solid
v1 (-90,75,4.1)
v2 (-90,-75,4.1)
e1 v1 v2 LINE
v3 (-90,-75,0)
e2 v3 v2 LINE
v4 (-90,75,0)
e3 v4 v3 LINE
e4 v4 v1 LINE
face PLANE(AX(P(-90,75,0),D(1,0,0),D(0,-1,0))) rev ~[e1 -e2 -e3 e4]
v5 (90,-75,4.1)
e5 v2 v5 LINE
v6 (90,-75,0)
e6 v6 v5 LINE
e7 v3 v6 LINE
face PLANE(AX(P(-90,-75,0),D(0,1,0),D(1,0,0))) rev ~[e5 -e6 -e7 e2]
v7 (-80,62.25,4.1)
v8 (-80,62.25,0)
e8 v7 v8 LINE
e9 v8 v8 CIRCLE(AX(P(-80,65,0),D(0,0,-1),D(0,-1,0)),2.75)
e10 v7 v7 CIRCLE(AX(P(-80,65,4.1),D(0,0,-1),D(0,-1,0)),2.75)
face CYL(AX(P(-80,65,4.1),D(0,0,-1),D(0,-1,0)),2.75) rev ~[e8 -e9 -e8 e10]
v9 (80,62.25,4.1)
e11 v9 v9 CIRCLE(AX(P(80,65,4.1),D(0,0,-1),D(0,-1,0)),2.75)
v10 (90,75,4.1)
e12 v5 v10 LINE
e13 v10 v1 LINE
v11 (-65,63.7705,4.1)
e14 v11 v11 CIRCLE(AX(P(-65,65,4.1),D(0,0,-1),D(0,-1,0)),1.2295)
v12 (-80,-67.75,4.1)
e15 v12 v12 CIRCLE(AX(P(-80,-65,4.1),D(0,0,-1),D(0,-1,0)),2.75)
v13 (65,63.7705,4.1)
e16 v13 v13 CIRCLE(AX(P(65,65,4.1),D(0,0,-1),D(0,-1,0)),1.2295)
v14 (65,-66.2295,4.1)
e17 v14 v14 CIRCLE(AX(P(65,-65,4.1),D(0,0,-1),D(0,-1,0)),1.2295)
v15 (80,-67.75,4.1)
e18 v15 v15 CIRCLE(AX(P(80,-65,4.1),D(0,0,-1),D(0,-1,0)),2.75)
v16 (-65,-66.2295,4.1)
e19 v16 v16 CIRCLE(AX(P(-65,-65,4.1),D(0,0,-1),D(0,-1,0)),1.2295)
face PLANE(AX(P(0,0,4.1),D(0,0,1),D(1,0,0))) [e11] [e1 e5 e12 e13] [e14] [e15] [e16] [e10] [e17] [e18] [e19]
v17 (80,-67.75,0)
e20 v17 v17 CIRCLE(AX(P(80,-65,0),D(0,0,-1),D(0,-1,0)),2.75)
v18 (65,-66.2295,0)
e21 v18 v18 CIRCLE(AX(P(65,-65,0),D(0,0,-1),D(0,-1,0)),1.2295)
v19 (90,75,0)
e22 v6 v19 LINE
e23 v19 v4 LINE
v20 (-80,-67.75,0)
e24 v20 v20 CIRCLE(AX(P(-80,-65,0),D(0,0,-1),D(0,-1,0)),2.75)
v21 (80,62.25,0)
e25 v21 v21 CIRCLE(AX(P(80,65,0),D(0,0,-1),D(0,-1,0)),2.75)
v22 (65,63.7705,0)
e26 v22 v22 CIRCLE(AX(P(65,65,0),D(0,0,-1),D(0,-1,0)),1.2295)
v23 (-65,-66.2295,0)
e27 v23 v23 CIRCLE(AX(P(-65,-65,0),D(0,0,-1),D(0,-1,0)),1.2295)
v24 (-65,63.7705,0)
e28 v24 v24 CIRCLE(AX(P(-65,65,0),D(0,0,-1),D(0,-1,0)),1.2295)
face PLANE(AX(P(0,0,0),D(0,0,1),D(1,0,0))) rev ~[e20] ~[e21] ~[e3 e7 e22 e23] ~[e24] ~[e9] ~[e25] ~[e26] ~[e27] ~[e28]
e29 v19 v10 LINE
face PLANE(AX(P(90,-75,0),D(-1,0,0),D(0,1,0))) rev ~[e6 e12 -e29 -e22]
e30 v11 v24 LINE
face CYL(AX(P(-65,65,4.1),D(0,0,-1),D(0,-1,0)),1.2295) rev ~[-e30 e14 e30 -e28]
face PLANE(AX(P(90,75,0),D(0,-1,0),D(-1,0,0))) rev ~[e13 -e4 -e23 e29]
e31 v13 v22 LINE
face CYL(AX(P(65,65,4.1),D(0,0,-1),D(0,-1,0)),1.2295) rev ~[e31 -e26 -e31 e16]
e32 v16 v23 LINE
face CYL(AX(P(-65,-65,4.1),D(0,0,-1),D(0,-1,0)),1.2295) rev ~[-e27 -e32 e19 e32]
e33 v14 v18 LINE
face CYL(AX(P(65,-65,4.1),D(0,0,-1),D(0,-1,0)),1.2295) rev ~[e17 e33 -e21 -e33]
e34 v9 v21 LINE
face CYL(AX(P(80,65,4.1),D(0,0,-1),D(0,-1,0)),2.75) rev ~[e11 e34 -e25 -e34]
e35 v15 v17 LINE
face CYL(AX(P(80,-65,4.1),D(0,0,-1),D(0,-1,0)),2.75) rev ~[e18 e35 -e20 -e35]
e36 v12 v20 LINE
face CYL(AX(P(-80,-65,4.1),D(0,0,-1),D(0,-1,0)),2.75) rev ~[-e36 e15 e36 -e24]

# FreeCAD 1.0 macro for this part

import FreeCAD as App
import Part
import Sketcher


def add_polygon(sketch, points):
    """Adds a closed chain of lines whose ends are joined by coincident constraints."""
    first, n = sketch.GeometryCount, len(points)
    for a, b in zip(points, points[1:] + points[:1]):
        sketch.addGeometry(Part.LineSegment(App.Vector(*a, 0), App.Vector(*b, 0)), False)
    for i in range(n):
        sketch.addConstraint(Sketcher.Constraint("Coincident", first + i, 2, first + (i + 1) % n, 1))

doc = App.newDocument("Part")
body = doc.addObject("PartDesign::Body", "Body")

# Sketch on XY plane
sketch1 = doc.addObject("Sketcher::SketchObject", "Sketch")
body.addObject(sketch1)
sketch1.AttachmentSupport = (doc.XY_Plane, [""])
sketch1.MapMode = "FlatFace"
add_polygon(sketch1, [(-90, 75), (-90, -75), (90, -75), (90, 75)])  # lines 0-3
sketch1.addConstraint([
    Sketcher.Constraint("Vertical", 0),
    Sketcher.Constraint("Horizontal", 1),
    Sketcher.Constraint("Vertical", 2),
    Sketcher.Constraint("Horizontal", 3),
    Sketcher.Constraint("Symmetric", 0, 2, 2, 2, -1, 1),
    Sketcher.Constraint("DistanceX", 1, 1, 1, 2, 180.0),
    Sketcher.Constraint("DistanceY", 0, 2, 0, 1, 150.0),
])
pad1 = doc.addObject("PartDesign::Pad", "Pad")
body.addObject(pad1)
pad1.Profile = sketch1
pad1.Length = 4.1

# Sketch on XY plane
sketch2 = doc.addObject("Sketcher::SketchObject", "Sketch001")
body.addObject(sketch2)
sketch2.AttachmentSupport = (doc.XY_Plane, [""])
sketch2.MapMode = "FlatFace"
sketch2.AttachmentOffset = App.Placement(App.Vector(0, 0, 4.1), App.Rotation())
sketch2.addGeometry([
    Part.Circle(App.Vector(-80, 65, 0), App.Vector(0, 0, 1), 2.75),
    Part.Circle(App.Vector(80, 65, 0), App.Vector(0, 0, 1), 2.75),
    Part.Circle(App.Vector(80, -65, 0), App.Vector(0, 0, 1), 2.75),
    Part.Circle(App.Vector(-80, -65, 0), App.Vector(0, 0, 1), 2.75),
], False)
sketch2.addConstraint([
    Sketcher.Constraint("Equal", 0, 1),
    Sketcher.Constraint("Equal", 1, 2),
    Sketcher.Constraint("Equal", 2, 3),
    Sketcher.Constraint("Symmetric", 0, 3, 2, 3, -1, 1),
    Sketcher.Constraint("Symmetric", 1, 3, 3, 3, -1, 1),
    Sketcher.Constraint("Symmetric", 0, 3, 1, 3, -2),
    Sketcher.Constraint("Diameter", 0, 5.5),
    Sketcher.Constraint("DistanceX", 0, 3, -1, 1, 80.0),
    Sketcher.Constraint("DistanceY", -1, 1, 0, 3, 65.0),
])
doc.recompute()
hole = doc.addObject("PartDesign::Hole", "Hole")
body.addObject(hole)
hole.Profile = sketch2
hole.ThreadType = "None"
hole.Diameter = 5.5
hole.DepthType = "Dimension"
hole.Depth = 9.1
hole.DrillPoint = "Angled"
hole.DrillPointAngle = 118

# Sketch on XY plane
sketch3 = doc.addObject("Sketcher::SketchObject", "Sketch002")
body.addObject(sketch3)
sketch3.AttachmentSupport = (doc.XY_Plane, [""])
sketch3.MapMode = "FlatFace"
sketch3.AttachmentOffset = App.Placement(App.Vector(0, 0, 4.1), App.Rotation())
sketch3.addGeometry([
    Part.Circle(App.Vector(-65, 65, 0), App.Vector(0, 0, 1), 1.2295),
    Part.Circle(App.Vector(65, 65, 0), App.Vector(0, 0, 1), 1.2295),
    Part.Circle(App.Vector(65, -65, 0), App.Vector(0, 0, 1), 1.2295),
    Part.Circle(App.Vector(-65, -65, 0), App.Vector(0, 0, 1), 1.2295),
], False)
sketch3.addConstraint([
    Sketcher.Constraint("Equal", 0, 1),
    Sketcher.Constraint("Equal", 1, 2),
    Sketcher.Constraint("Equal", 2, 3),
    Sketcher.Constraint("Symmetric", 0, 3, 2, 3, -1, 1),
    Sketcher.Constraint("Symmetric", 1, 3, 3, 3, -1, 1),
    Sketcher.Constraint("Symmetric", 0, 3, 1, 3, -2),
    Sketcher.Constraint("Diameter", 0, 2.459),
    Sketcher.Constraint("DistanceX", 0, 3, -1, 1, 65.0),
    Sketcher.Constraint("DistanceY", -1, 1, 0, 3, 65.0),
])
doc.recompute()
hole2 = doc.addObject("PartDesign::Hole", "Hole001")
body.addObject(hole2)
hole2.Profile = sketch3
hole2.ThreadType = "None"
hole2.Diameter = 2.459
hole2.DepthType = "Dimension"
hole2.Depth = 8.8
hole2.DrillPoint = "Angled"
hole2.DrillPointAngle = 118

doc.recompute()
